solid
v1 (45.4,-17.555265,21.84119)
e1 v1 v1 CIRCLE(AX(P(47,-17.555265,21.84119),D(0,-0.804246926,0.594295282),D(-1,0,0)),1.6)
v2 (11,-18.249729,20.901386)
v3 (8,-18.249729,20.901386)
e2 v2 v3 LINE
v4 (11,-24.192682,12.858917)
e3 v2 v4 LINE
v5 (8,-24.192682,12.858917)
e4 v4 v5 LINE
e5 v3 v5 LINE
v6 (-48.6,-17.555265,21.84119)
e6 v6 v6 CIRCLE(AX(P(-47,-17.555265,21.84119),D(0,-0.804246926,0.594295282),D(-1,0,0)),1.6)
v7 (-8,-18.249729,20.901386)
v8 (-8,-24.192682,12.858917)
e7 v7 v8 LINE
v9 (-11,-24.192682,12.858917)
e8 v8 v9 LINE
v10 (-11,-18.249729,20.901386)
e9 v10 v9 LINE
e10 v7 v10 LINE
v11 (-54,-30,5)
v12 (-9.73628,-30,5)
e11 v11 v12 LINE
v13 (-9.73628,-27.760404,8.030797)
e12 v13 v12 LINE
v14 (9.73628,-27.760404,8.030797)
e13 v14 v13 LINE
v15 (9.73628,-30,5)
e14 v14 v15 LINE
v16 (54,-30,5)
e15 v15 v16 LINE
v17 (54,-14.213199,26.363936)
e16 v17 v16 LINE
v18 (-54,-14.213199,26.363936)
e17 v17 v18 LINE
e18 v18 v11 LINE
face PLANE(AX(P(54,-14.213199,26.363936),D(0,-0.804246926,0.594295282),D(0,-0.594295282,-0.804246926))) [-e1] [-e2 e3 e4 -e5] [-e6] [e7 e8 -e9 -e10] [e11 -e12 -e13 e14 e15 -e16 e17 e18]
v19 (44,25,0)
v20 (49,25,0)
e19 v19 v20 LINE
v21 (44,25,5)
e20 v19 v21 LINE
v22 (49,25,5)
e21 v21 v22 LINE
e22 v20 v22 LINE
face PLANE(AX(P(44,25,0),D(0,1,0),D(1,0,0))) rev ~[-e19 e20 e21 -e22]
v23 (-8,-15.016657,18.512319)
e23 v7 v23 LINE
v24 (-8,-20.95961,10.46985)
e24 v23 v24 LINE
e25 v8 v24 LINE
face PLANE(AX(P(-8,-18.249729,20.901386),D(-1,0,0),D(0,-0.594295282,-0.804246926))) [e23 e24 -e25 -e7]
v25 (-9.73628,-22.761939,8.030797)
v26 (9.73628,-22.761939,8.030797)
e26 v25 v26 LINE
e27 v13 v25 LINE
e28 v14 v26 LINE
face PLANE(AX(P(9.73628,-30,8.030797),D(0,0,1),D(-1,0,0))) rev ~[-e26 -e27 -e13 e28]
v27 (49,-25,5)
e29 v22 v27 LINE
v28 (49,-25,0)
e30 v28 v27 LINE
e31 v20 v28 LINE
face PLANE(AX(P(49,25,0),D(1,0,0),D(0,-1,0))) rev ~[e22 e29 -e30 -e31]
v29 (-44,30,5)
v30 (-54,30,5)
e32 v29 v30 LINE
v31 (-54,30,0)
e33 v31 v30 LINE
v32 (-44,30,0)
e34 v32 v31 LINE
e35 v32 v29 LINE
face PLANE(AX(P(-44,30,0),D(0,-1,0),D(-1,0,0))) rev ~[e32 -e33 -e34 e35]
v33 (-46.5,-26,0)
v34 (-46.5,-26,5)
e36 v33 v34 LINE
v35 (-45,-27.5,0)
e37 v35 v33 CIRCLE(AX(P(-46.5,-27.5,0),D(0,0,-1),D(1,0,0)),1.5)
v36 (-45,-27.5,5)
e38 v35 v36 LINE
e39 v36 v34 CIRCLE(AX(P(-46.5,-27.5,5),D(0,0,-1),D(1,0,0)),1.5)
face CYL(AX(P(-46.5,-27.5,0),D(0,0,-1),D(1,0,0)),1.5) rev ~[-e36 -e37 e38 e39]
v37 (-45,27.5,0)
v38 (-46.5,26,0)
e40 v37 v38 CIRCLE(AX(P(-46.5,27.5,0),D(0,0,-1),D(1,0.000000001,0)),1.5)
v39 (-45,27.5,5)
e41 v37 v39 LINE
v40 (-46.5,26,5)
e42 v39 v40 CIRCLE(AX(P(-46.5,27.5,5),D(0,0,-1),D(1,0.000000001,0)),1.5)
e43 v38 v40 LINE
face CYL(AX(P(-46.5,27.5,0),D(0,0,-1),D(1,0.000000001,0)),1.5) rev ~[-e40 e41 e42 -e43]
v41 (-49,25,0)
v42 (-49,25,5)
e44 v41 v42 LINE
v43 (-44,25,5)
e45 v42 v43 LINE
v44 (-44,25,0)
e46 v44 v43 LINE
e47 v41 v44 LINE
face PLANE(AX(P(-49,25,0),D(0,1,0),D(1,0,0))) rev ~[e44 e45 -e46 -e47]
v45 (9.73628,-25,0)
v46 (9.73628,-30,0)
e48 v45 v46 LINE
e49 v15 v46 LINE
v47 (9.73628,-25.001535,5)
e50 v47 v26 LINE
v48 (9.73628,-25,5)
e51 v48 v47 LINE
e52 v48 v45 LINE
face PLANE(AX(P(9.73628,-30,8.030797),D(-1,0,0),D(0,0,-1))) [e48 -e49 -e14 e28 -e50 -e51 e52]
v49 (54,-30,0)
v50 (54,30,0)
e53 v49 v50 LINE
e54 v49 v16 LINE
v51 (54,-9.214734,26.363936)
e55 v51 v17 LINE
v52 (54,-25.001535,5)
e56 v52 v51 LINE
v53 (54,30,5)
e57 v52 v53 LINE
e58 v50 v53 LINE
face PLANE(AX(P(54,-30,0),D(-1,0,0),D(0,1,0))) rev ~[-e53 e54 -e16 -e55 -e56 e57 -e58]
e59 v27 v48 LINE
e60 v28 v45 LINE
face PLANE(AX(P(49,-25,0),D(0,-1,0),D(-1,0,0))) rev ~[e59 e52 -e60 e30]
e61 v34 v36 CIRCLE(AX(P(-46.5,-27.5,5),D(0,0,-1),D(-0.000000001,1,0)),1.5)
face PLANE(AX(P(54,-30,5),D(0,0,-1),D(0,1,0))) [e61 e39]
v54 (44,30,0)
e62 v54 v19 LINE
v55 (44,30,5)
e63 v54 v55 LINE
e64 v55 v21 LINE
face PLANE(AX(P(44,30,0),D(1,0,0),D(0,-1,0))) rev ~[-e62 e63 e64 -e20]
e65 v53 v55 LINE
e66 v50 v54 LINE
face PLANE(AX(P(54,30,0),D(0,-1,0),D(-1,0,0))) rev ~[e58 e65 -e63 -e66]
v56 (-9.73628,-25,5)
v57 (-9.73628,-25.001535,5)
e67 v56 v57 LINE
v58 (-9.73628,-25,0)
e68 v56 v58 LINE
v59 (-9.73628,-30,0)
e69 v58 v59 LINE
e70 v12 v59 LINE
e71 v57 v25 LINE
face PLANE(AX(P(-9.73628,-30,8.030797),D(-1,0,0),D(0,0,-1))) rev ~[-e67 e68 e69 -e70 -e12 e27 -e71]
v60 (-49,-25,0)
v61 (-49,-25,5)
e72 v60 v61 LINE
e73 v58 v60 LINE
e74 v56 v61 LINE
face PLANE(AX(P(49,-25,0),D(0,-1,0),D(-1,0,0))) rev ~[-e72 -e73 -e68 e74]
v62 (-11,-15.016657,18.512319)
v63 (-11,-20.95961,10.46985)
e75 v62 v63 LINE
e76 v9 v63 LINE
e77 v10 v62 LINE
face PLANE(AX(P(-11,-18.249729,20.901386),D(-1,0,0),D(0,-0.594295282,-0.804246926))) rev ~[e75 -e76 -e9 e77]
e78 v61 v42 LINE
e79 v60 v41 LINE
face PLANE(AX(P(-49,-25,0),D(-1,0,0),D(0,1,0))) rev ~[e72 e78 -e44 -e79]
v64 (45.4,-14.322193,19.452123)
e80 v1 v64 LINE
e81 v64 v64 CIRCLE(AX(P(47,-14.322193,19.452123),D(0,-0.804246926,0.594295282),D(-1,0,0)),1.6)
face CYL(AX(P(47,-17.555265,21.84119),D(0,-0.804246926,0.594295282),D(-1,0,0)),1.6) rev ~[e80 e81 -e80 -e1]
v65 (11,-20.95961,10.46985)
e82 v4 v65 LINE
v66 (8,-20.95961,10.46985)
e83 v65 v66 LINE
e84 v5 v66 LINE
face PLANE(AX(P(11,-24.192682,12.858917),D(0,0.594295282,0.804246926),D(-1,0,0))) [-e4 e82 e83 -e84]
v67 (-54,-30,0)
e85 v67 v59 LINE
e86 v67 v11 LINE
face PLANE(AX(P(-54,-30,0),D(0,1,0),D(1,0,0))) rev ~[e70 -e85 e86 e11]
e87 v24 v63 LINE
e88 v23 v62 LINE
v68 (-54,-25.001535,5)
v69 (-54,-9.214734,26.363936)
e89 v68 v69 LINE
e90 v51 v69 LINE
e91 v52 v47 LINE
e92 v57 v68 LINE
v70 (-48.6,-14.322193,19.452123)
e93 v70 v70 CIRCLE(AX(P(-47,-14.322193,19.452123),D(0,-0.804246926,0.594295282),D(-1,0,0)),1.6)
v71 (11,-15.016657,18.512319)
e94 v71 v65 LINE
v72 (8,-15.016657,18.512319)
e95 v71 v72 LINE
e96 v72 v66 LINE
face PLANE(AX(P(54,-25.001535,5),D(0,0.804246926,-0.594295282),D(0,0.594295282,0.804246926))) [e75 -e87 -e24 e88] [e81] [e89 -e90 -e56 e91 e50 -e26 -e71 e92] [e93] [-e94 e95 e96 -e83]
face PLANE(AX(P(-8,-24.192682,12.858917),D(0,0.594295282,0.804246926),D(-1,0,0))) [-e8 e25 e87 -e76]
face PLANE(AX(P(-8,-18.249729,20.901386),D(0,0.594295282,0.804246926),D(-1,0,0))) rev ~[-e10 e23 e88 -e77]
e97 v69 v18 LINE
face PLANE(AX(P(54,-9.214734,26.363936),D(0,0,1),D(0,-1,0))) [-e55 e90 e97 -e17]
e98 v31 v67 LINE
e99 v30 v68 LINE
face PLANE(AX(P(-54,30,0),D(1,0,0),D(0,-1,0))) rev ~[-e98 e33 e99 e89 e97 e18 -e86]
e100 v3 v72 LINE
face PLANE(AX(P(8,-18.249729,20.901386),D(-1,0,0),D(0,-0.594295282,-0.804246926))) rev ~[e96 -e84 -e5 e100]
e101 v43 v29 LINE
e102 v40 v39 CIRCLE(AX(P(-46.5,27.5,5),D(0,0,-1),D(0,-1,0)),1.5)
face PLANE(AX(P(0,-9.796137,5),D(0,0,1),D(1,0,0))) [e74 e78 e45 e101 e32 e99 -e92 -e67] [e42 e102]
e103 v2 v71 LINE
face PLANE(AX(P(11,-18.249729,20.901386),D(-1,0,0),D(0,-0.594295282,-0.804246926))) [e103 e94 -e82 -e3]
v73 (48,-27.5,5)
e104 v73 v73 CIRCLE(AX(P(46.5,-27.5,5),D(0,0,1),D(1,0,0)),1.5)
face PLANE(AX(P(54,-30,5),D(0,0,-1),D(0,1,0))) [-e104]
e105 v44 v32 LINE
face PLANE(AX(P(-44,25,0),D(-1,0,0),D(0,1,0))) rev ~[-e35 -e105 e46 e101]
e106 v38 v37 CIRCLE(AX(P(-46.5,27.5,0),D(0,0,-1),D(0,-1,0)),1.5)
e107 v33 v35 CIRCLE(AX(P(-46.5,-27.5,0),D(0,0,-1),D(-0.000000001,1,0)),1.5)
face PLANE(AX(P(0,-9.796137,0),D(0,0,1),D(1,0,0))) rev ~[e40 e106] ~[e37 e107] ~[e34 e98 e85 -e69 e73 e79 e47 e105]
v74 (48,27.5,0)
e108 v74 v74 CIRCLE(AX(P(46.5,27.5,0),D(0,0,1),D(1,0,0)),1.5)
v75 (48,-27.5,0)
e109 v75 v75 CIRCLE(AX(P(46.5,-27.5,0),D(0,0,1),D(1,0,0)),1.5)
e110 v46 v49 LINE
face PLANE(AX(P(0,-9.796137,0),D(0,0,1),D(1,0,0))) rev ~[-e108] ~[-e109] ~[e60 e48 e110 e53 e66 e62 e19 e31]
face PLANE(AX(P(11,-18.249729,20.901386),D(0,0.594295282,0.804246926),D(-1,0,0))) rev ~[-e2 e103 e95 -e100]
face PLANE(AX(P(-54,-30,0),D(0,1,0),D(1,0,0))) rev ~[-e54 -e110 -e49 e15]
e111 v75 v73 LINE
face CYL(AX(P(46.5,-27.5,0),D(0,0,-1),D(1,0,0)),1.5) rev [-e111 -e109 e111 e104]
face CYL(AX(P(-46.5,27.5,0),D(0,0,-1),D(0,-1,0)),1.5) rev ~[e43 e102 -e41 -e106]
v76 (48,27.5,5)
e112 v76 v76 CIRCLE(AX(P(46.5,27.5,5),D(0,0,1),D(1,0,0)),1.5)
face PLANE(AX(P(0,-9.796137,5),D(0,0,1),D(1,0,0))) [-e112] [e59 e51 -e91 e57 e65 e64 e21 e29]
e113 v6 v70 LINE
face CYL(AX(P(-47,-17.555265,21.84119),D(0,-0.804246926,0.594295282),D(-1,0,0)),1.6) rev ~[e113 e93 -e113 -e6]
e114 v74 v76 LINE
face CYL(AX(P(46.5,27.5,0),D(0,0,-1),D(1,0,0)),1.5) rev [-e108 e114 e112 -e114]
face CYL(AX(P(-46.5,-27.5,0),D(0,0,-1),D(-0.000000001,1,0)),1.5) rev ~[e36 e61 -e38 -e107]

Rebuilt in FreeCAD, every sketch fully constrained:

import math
import FreeCAD as App
import Part
import Sketcher
Q = App.Units.Quantity


def add_polygon(sketch, points):
    """Adds a closed chain of lines whose ends are joined by coincident constraints."""
    first, n = sketch.GeometryCount, len(points)
    for a, b in zip(points, points[1:] + points[:1]):
        sketch.addGeometry(Part.LineSegment(App.Vector(*a, 0), App.Vector(*b, 0)), False)
    for i in range(n):
        sketch.addConstraint(Sketcher.Constraint("Coincident", first + i, 2, first + (i + 1) % n, 1))

doc = App.newDocument("Part")
body = doc.addObject("PartDesign::Body", "Body")

# Sketch on XY plane
sketch1 = body.newObject("Sketcher::SketchObject", "Sketch")
sketch1.AttachmentSupport = (doc.getObject("XY_Plane"), [""])
sketch1.MapMode = "FlatFace"
add_polygon(sketch1, [(-49, 25), (-44, 25), (-44, 30), (-54, 30), (-54, -30), (54, -30), (54, 30), (44, 30), (44, 25), (49, 25), (49, -25), (-49, -25)])  # lines 0-11
sketch1.addGeometry(Part.ArcOfCircle(Part.Circle(App.Vector(-46.5, -27.5, 0), App.Vector(0, 0, 1), 1.5), math.radians(90), math.radians(360)), False)  # 12
sketch1.addGeometry(Part.ArcOfCircle(Part.Circle(App.Vector(-46.5, -27.5, 0), App.Vector(0, 0, 1), 1.5), math.radians(0), math.radians(90)), False)  # 13
sketch1.addGeometry(Part.Circle(App.Vector(46.5, -27.5, 0), App.Vector(0, 0, 1), 1.5), False)  # 14
sketch1.addGeometry(Part.ArcOfCircle(Part.Circle(App.Vector(-46.5, 27.5, 0), App.Vector(0, 0, 1), 1.5), math.radians(0), math.radians(270)), False)  # 15
sketch1.addGeometry(Part.ArcOfCircle(Part.Circle(App.Vector(-46.5, 27.5, 0), App.Vector(0, 0, 1), 1.5), math.radians(-90), math.radians(0)), False)  # 16
sketch1.addGeometry(Part.Circle(App.Vector(46.5, 27.5, 0), App.Vector(0, 0, 1), 1.5), False)  # 17
sketch1.addConstraint([
    Sketcher.Constraint("Tangent", 12, 1, 13, 2),
    Sketcher.Constraint("Coincident", 13, 1, 12, 2),
    Sketcher.Constraint("Tangent", 15, 1, 16, 2),
    Sketcher.Constraint("Coincident", 16, 1, 15, 2),
    Sketcher.Constraint("Horizontal", 0),
    Sketcher.Constraint("Vertical", 1),
    Sketcher.Constraint("Horizontal", 2),
    Sketcher.Constraint("Vertical", 3),
    Sketcher.Constraint("Horizontal", 4),
    Sketcher.Constraint("Vertical", 5),
    Sketcher.Constraint("Horizontal", 6),
    Sketcher.Constraint("Vertical", 7),
    Sketcher.Constraint("Horizontal", 8),
    Sketcher.Constraint("Vertical", 9),
    Sketcher.Constraint("Horizontal", 10),
    Sketcher.Constraint("Vertical", 11),
    Sketcher.Constraint("Equal", 13, 14),
    Sketcher.Constraint("Equal", 14, 15),
    Sketcher.Constraint("Equal", 16, 17),
    Sketcher.Constraint("Symmetric", 14, 3, 15, 3, -1, 1),
    Sketcher.Constraint("Symmetric", 12, 3, 17, 3, -1, 1),
    Sketcher.Constraint("Symmetric", 2, 2, 4, 2, -1, 1),
    Sketcher.Constraint("Symmetric", 8, 2, 10, 2, -1, 1),
    Sketcher.Constraint("Symmetric", 12, 3, 14, 3, -2),
    Sketcher.Constraint("Symmetric", 1, 2, 6, 2, -2),
    Sketcher.Constraint("Horizontal", 0, 2, 7, 2),
    Sketcher.Constraint("Horizontal", 14, 3, 13, 1),
    Sketcher.Constraint("Horizontal", 17, 3, 15, 1),
    Sketcher.Constraint("Vertical", 16, 3, 12, 1),
    Sketcher.Constraint("Vertical", 12, 1, 16, 1),
    Sketcher.Constraint("Equal", 8, 1),
    Sketcher.Constraint("Diameter", 14, Q("3 mm")),
    Sketcher.Constraint("DistanceX", 0, 1, 0, 2, Q("5 mm")),
    Sketcher.Constraint("DistanceX", 2, 2, 2, 1, Q("10 mm")),
    Sketcher.Constraint("DistanceX", 4, 1, 4, 2, Q("108 mm")),
    Sketcher.Constraint("DistanceY", 3, 2, 3, 1, Q("60 mm")),
    Sketcher.Constraint("DistanceY", 12, 1, -1, 1, Q("26 mm")),
    Sketcher.Constraint("DistanceX", 13, 1, -1, 1, Q("45 mm")),
])
pad1 = body.newObject("PartDesign::Pad", "Pad")
pad1.Profile = sketch1
pad1.Length = 5

# Sketch on YZ plane
sketch2 = body.newObject("Sketcher::SketchObject", "Sketch001")
sketch2.AttachmentSupport = (doc.getObject("YZ_Plane"), [""])
sketch2.MapMode = "FlatFace"
sketch2.AttachmentOffset = App.Placement(App.Vector(0, 0, 54), App.Rotation())
add_polygon(sketch2, [(-30, 5), (-25.001535, 5), (-9.214734, 26.363936), (-14.213199, 26.363936)])  # lines 0-3
sketch2.addConstraint([
    Sketcher.Constraint("Horizontal", 0),
    Sketcher.Constraint("Horizontal", 2),
    Sketcher.Constraint("Parallel", 1, 3),
    Sketcher.Constraint("DistanceY", -1, 1, 0, 2, Q("5 mm")),
    Sketcher.Constraint("DistanceX", 3, 2, -1, 1, Q("30 mm")),
    Sketcher.Constraint("Distance", 1, Q("26.563902 mm")),
    Sketcher.Constraint("DistanceX", 2, 2, -1, 1, Q("14.213199 mm")),
    Sketcher.Constraint("DistanceX", 0, 1, 0, 2, Q("4.998465 mm")),
])
pad2 = body.newObject("PartDesign::Pad", "Pad001")
pad2.Profile = sketch2
pad2.Length = 108
pad2.Reversed = True

# Sketch on an angled plane
sketch3 = body.newObject("Sketcher::SketchObject", "Sketch002")
sketch3.Placement = App.Placement(App.Vector(0, -21.794194, 16.104739), App.Rotation(App.Vector(-1, 0, 0), App.Vector(0, -0.594295282, -0.804246926), App.Vector(0, -0.804246926, 0.594295282), "ZXY"))
sketch3.addGeometry(Part.Circle(App.Vector(47, -7.132698, 0), App.Vector(0, 0, 1), 1.6), False)
sketch3.addConstraint([
    Sketcher.Constraint("Diameter", 0, Q("3.2 mm")),
    Sketcher.Constraint("DistanceX", -1, 1, 0, 3, Q("47 mm")),
    Sketcher.Constraint("DistanceY", 0, 3, -1, 1, Q("7.132698 mm")),
])
pocket1 = body.newObject("PartDesign::Pocket", "Pocket")
pocket1.Profile = sketch3
pocket1.Type = "UpToFirst"

# Sketch on an angled plane
sketch4 = body.newObject("Sketcher::SketchObject", "Sketch003")
sketch4.Placement = App.Placement(App.Vector(0, -21.794194, 16.104739), App.Rotation(App.Vector(-1, 0, 0), App.Vector(0, -0.594295282, -0.804246926), App.Vector(0, -0.804246926, 0.594295282), "ZXY"))
sketch4.addGeometry(Part.Circle(App.Vector(-47, -7.132698, 0), App.Vector(0, 0, 1), 1.6), False)
sketch4.addConstraint([
    Sketcher.Constraint("Diameter", 0, Q("3.2 mm")),
    Sketcher.Constraint("DistanceX", 0, 3, -1, 1, Q("47 mm")),
    Sketcher.Constraint("DistanceY", 0, 3, -1, 1, Q("7.132698 mm")),
])
pocket2 = body.newObject("PartDesign::Pocket", "Pocket001")
pocket2.Profile = sketch4
pocket2.Type = "UpToFirst"

# Sketch on an angled plane
sketch5 = body.newObject("Sketcher::SketchObject", "Sketch004")
sketch5.Placement = App.Placement(App.Vector(0, -21.794194, 16.104739), App.Rotation(App.Vector(-1, 0, 0), App.Vector(0, -0.594295282, -0.804246926), App.Vector(0, -0.804246926, 0.594295282), "ZXY"))
add_polygon(sketch5, [(-11, 4.035852), (-11, -5.964148), (-8, -5.964148), (-8, 4.035852)])  # lines 0-3
sketch5.addConstraint([
    Sketcher.Constraint("Vertical", 0),
    Sketcher.Constraint("Horizontal", 1),
    Sketcher.Constraint("Vertical", 2),
    Sketcher.Constraint("Horizontal", 3),
    Sketcher.Constraint("DistanceX", 1, 1, 1, 2, Q("3 mm")),
    Sketcher.Constraint("DistanceY", 0, 2, 0, 1, Q("10 mm")),
    Sketcher.Constraint("DistanceX", 0, 2, -1, 1, Q("11 mm")),
    Sketcher.Constraint("DistanceY", 0, 2, -1, 1, Q("5.964148 mm")),
])
pocket3 = body.newObject("PartDesign::Pocket", "Pocket002")
pocket3.Profile = sketch5
pocket3.Type = "UpToFirst"

# Sketch on an angled plane
sketch6 = body.newObject("Sketcher::SketchObject", "Sketch005")
sketch6.Placement = App.Placement(App.Vector(0, -21.794194, 16.104739), App.Rotation(App.Vector(-1, 0, 0), App.Vector(0, -0.594295282, -0.804246926), App.Vector(0, -0.804246926, 0.594295282), "ZXY"))
add_polygon(sketch6, [(8, 4.035852), (8, -5.964148), (11, -5.964148), (11, 4.035852)])  # lines 0-3
sketch6.addConstraint([
    Sketcher.Constraint("Vertical", 0),
    Sketcher.Constraint("Horizontal", 1),
    Sketcher.Constraint("Vertical", 2),
    Sketcher.Constraint("Horizontal", 3),
    Sketcher.Constraint("DistanceX", 1, 1, 1, 2, Q("3 mm")),
    Sketcher.Constraint("DistanceY", 0, 2, 0, 1, Q("10 mm")),
    Sketcher.Constraint("DistanceX", -1, 1, 0, 2, Q("8 mm")),
    Sketcher.Constraint("DistanceY", 0, 2, -1, 1, Q("5.964148 mm")),
])
pocket4 = body.newObject("PartDesign::Pocket", "Pocket003")
pocket4.Profile = sketch6
pocket4.Type = "UpToFirst"

# Sketch on XZ plane
sketch7 = body.newObject("Sketcher::SketchObject", "Sketch006")
sketch7.AttachmentSupport = (doc.getObject("XZ_Plane"), [""])
sketch7.MapMode = "FlatFace"
sketch7.AttachmentOffset = App.Placement(App.Vector(0, 0, 30), App.Rotation())
add_polygon(sketch7, [(9.73628, -13.139951), (9.73628, 8.030797), (-9.73628, 8.030797), (-9.73628, -13.139951)])  # lines 0-3
sketch7.addConstraint([
    Sketcher.Constraint("Vertical", 0),
    Sketcher.Constraint("Horizontal", 1),
    Sketcher.Constraint("Vertical", 2),
    Sketcher.Constraint("Horizontal", 3),
    Sketcher.Constraint("DistanceX", 1, 2, 1, 1, Q("19.472559 mm")),
    Sketcher.Constraint("DistanceY", 0, 1, 0, 2, Q("21.170748 mm")),
    Sketcher.Constraint("DistanceX", -1, 1, 0, 2, Q("9.73628 mm")),
    Sketcher.Constraint("DistanceY", 2, 2, -1, 1, Q("13.139951 mm")),
])
pocket5 = body.newObject("PartDesign::Pocket", "Pocket004")
pocket5.Profile = sketch7
pocket5.Type = "ThroughAll"

doc.recompute()
